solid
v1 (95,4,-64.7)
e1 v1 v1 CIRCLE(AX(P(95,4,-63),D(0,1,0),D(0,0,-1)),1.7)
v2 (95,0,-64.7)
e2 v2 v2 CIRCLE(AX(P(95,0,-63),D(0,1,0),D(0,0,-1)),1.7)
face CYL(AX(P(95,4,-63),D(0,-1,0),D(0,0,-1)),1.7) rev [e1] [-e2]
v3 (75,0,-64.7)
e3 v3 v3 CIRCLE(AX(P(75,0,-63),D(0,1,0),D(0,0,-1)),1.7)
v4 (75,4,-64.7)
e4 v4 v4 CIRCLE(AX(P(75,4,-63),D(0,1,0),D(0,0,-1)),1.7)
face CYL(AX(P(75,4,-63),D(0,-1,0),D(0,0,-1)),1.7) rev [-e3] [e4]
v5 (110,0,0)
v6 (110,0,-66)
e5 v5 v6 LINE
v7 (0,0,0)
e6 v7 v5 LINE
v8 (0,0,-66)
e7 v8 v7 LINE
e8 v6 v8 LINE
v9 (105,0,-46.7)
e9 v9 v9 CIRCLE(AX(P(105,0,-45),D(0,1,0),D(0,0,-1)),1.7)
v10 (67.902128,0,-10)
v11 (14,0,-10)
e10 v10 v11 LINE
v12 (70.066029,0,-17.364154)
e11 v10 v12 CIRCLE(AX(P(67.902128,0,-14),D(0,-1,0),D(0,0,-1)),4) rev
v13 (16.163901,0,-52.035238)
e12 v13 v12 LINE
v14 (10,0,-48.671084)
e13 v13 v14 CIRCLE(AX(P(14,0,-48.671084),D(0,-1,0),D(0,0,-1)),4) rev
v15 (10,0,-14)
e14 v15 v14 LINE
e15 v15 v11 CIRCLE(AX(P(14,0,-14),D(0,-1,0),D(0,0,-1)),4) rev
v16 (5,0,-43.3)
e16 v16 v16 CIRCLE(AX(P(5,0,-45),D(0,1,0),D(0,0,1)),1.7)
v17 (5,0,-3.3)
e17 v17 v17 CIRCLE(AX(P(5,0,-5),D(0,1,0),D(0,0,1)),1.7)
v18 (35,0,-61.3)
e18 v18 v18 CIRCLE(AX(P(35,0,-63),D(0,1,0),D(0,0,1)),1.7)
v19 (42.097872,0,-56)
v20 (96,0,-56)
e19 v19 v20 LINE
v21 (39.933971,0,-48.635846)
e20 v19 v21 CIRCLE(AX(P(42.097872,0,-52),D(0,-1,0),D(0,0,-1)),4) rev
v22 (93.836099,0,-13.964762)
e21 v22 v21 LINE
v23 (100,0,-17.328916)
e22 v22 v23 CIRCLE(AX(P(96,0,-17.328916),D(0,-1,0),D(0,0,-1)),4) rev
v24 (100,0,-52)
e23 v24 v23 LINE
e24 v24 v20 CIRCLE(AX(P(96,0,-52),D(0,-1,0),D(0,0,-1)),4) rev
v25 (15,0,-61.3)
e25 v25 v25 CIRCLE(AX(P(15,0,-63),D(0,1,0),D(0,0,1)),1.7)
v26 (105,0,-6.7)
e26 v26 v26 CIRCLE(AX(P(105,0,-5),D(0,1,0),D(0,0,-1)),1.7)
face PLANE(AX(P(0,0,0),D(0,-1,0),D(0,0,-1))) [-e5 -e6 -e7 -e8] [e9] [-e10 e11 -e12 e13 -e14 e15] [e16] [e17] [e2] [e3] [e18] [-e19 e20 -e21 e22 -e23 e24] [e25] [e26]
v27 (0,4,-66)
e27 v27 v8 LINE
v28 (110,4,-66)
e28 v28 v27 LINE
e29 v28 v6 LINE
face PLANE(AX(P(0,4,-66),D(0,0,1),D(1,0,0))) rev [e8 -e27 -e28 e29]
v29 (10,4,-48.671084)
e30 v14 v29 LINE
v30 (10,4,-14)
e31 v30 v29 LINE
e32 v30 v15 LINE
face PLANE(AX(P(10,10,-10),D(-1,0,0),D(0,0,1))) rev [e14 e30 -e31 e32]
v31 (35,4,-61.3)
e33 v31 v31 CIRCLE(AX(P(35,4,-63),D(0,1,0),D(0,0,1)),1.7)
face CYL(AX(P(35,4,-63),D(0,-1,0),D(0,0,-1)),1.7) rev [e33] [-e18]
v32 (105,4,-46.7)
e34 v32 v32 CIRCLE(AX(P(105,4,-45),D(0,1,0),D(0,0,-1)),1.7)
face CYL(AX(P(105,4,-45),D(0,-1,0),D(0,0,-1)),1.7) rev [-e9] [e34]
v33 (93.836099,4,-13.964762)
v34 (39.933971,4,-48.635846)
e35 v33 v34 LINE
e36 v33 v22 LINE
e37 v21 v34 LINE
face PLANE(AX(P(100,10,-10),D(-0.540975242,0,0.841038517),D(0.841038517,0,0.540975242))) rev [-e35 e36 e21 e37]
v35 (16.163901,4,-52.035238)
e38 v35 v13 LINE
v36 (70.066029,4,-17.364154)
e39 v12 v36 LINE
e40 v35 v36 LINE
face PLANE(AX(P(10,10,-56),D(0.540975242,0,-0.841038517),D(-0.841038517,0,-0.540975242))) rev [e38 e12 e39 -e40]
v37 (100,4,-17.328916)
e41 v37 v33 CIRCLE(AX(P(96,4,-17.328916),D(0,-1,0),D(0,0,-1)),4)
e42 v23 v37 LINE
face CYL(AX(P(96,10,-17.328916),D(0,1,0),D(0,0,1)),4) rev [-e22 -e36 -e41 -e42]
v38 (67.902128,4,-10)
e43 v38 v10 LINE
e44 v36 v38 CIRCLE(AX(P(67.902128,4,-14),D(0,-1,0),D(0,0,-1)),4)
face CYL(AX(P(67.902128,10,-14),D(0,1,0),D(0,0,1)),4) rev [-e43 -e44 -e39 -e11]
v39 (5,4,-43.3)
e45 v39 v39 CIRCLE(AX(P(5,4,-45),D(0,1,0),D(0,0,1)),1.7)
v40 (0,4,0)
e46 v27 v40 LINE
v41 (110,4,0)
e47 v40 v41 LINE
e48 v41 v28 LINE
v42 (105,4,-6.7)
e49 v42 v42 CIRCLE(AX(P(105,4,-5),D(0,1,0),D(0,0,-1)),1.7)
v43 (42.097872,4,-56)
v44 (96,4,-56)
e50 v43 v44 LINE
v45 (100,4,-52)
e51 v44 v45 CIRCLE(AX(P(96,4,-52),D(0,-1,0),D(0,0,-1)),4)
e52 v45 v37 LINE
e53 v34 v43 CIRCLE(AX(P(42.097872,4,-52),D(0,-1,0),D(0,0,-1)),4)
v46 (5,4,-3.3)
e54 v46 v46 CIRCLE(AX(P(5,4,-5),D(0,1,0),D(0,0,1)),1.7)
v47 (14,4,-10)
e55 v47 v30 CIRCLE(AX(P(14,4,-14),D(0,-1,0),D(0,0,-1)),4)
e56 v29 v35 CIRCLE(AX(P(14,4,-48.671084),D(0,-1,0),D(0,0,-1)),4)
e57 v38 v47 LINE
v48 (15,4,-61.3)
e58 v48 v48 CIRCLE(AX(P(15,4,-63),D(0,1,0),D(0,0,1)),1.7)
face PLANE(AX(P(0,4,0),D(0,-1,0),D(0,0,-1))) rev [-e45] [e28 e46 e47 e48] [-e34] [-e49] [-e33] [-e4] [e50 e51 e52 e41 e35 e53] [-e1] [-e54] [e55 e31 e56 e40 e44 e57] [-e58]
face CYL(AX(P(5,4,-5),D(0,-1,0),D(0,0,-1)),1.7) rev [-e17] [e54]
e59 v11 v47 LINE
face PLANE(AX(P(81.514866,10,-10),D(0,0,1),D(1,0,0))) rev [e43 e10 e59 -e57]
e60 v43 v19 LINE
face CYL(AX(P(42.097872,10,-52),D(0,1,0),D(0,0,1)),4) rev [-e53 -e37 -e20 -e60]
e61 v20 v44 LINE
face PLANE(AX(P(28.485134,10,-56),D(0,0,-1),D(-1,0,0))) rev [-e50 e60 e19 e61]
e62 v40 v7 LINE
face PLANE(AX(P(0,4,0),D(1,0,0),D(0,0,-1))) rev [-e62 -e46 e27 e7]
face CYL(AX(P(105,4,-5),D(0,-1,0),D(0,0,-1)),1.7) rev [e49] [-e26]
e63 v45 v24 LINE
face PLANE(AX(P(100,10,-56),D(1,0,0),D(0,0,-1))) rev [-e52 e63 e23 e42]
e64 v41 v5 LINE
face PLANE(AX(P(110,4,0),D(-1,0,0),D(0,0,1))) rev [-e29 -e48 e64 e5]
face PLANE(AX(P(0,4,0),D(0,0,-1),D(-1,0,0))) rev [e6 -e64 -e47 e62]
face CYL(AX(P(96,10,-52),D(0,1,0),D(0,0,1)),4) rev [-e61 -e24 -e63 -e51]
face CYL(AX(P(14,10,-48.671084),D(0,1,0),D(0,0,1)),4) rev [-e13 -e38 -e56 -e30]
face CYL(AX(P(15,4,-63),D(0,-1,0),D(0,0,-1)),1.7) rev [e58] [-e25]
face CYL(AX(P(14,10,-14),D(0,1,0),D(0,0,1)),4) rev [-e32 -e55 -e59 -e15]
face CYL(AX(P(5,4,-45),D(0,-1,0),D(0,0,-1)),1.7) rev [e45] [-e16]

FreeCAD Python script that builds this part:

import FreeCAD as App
import Part
import Sketcher

V = App.Vector


def edges_at(feature, points):
    """Names of the edges that pass closest to the given points."""
    edges = feature.Shape.Edges
    near = lambda p: min(range(len(edges)), key=lambda i: edges[i].distToShape(Part.Vertex(*p))[0])
    return sorted({f"Edge{near(p) + 1}" for p in points})


def add_polygon(sketch, points):
    """Adds a closed chain of lines whose ends are joined by coincident constraints."""
    first, n = sketch.GeometryCount, len(points)
    for a, b in zip(points, points[1:] + points[:1]):
        sketch.addGeometry(Part.LineSegment(App.Vector(*a, 0), App.Vector(*b, 0)), False)
    for i in range(n):
        sketch.addConstraint(Sketcher.Constraint("Coincident", first + i, 2, first + (i + 1) % n, 1))

doc = App.newDocument("Part")
body = doc.addObject("PartDesign::Body", "Body")

sketch1 = doc.addObject("Sketcher::SketchObject", "Sketch")
body.addObject(sketch1)
sketch1.AttachmentSupport = (doc.XZ_Plane, [""])
sketch1.MapMode = "FlatFace"
add_polygon(sketch1, [(0, -66), (0, 0), (110, 0), (110, -66)])
sketch1.addGeometry(Part.Circle(V(5, -5, 0), V(0, 0, 1), 1.7), False)
sketch1.addGeometry(Part.Circle(V(105, -5, 0), V(0, 0, 1), 1.7), False)
sketch1.addGeometry(Part.Circle(V(5, -45, 0), V(0, 0, 1), 1.7), False)
sketch1.addGeometry(Part.Circle(V(15, -63, 0), V(0, 0, 1), 1.7), False)
sketch1.addGeometry(Part.Circle(V(35, -63, 0), V(0, 0, 1), 1.7), False)
sketch1.addGeometry(Part.Circle(V(105, -45, 0), V(0, 0, 1), 1.7), False)
sketch1.addGeometry(Part.Circle(V(75, -63, 0), V(0, 0, 1), 1.7), False)
sketch1.addGeometry(Part.Circle(V(95, -63, 0), V(0, 0, 1), 1.7), False)
sketch1.addConstraint(Sketcher.Constraint("Vertical", 0))
sketch1.addConstraint(Sketcher.Constraint("Horizontal", 1))
sketch1.addConstraint(Sketcher.Constraint("Vertical", 2))
sketch1.addConstraint(Sketcher.Constraint("Horizontal", 3))
sketch1.addConstraint(Sketcher.Constraint("Coincident", 0, 2, -1, 1))
sketch1.addConstraint(Sketcher.Constraint("Equal", 4, 5))
sketch1.addConstraint(Sketcher.Constraint("Equal", 5, 6))
sketch1.addConstraint(Sketcher.Constraint("Equal", 6, 7))
sketch1.addConstraint(Sketcher.Constraint("Equal", 7, 8))
sketch1.addConstraint(Sketcher.Constraint("Equal", 8, 9))
sketch1.addConstraint(Sketcher.Constraint("Equal", 9, 10))
sketch1.addConstraint(Sketcher.Constraint("Equal", 10, 11))
sketch1.addConstraint(Sketcher.Constraint("Horizontal", 4, 3, 5, 3))
sketch1.addConstraint(Sketcher.Constraint("Horizontal", 7, 3, 8, 3))
sketch1.addConstraint(Sketcher.Constraint("Horizontal", 6, 3, 9, 3))
sketch1.addConstraint(Sketcher.Constraint("Horizontal", 8, 3, 10, 3))
sketch1.addConstraint(Sketcher.Constraint("Horizontal", 10, 3, 11, 3))
sketch1.addConstraint(Sketcher.Constraint("Vertical", 4, 3, 6, 3))
sketch1.addConstraint(Sketcher.Constraint("Vertical", 5, 3, 9, 3))
sketch1.addConstraint(Sketcher.Constraint("Diameter", 4, 3.4))
sketch1.addConstraint(Sketcher.Constraint("DistanceX", 1, 1, 1, 2, 110.0))
sketch1.addConstraint(Sketcher.Constraint("DistanceY", 0, 1, 0, 2, 66.0))
sketch1.addConstraint(Sketcher.Constraint("DistanceX", -1, 1, 4, 3, 5.0))
sketch1.addConstraint(Sketcher.Constraint("DistanceY", 4, 3, -1, 1, 5.0))
sketch1.addConstraint(Sketcher.Constraint("DistanceX", -1, 1, 5, 3, 105.0))
sketch1.addConstraint(Sketcher.Constraint("DistanceY", 6, 3, -1, 1, 45.0))
sketch1.addConstraint(Sketcher.Constraint("DistanceX", -1, 1, 7, 3, 15.0))
sketch1.addConstraint(Sketcher.Constraint("DistanceY", 7, 3, -1, 1, 63.0))
sketch1.addConstraint(Sketcher.Constraint("DistanceX", -1, 1, 8, 3, 35.0))
sketch1.addConstraint(Sketcher.Constraint("DistanceX", -1, 1, 10, 3, 75.0))
sketch1.addConstraint(Sketcher.Constraint("DistanceX", -1, 1, 11, 3, 95.0))
pad1 = doc.addObject("PartDesign::Pad", "Pad")
body.addObject(pad1)
pad1.Profile = sketch1
pad1.Length = 4
pad1.Reversed = True

sketch2 = doc.addObject("Sketcher::SketchObject", "Sketch001")
body.addObject(sketch2)
sketch2.AttachmentSupport = (doc.XZ_Plane, [""])
sketch2.MapMode = "FlatFace"
add_polygon(sketch2, [(100, -56), (100, -10), (28.485134, -56)])
add_polygon(sketch2, [(10, -56), (81.514866, -10), (10, -10)])
sketch2.addConstraint(Sketcher.Constraint("Vertical", 0))
sketch2.addConstraint(Sketcher.Constraint("Horizontal", 2))
sketch2.addConstraint(Sketcher.Constraint("Horizontal", 4))
sketch2.addConstraint(Sketcher.Constraint("Vertical", 5))
sketch2.addConstraint(Sketcher.Constraint("Parallel", 1, 3))
sketch2.addConstraint(Sketcher.Constraint("Horizontal", 0, 2, 3, 2))
sketch2.addConstraint(Sketcher.Constraint("Horizontal", 2, 2, 5, 2))
sketch2.addConstraint(Sketcher.Constraint("DistanceY", 0, 1, 0, 2, 46.0))
sketch2.addConstraint(Sketcher.Constraint("DistanceX", -1, 1, 0, 2, 100.0))
sketch2.addConstraint(Sketcher.Constraint("DistanceY", 0, 2, -1, 1, 10.0))
sketch2.addConstraint(Sketcher.Constraint("DistanceX", -1, 1, 4, 2, 10.0))
sketch2.addConstraint(Sketcher.Constraint("DistanceX", 2, 1, 2, 2, 71.514866))
pocket1 = doc.addObject("PartDesign::Pocket", "Pocket")
body.addObject(pocket1)
pocket1.Profile = sketch2
pocket1.Length = 10
doc.recompute()

fillet = doc.addObject("PartDesign::Fillet", "Fillet")
body.addObject(fillet)
fillet.Base = (pocket1, edges_at(pocket1, [
    (10, 2, -56),
    (10, 2, -10),
    (81.515, 2, -10),
    (100, 2, -56),
    (28.485, 2, -56),
    (100, 2, -10),
]))
fillet.Radius = 4

doc.recompute()
